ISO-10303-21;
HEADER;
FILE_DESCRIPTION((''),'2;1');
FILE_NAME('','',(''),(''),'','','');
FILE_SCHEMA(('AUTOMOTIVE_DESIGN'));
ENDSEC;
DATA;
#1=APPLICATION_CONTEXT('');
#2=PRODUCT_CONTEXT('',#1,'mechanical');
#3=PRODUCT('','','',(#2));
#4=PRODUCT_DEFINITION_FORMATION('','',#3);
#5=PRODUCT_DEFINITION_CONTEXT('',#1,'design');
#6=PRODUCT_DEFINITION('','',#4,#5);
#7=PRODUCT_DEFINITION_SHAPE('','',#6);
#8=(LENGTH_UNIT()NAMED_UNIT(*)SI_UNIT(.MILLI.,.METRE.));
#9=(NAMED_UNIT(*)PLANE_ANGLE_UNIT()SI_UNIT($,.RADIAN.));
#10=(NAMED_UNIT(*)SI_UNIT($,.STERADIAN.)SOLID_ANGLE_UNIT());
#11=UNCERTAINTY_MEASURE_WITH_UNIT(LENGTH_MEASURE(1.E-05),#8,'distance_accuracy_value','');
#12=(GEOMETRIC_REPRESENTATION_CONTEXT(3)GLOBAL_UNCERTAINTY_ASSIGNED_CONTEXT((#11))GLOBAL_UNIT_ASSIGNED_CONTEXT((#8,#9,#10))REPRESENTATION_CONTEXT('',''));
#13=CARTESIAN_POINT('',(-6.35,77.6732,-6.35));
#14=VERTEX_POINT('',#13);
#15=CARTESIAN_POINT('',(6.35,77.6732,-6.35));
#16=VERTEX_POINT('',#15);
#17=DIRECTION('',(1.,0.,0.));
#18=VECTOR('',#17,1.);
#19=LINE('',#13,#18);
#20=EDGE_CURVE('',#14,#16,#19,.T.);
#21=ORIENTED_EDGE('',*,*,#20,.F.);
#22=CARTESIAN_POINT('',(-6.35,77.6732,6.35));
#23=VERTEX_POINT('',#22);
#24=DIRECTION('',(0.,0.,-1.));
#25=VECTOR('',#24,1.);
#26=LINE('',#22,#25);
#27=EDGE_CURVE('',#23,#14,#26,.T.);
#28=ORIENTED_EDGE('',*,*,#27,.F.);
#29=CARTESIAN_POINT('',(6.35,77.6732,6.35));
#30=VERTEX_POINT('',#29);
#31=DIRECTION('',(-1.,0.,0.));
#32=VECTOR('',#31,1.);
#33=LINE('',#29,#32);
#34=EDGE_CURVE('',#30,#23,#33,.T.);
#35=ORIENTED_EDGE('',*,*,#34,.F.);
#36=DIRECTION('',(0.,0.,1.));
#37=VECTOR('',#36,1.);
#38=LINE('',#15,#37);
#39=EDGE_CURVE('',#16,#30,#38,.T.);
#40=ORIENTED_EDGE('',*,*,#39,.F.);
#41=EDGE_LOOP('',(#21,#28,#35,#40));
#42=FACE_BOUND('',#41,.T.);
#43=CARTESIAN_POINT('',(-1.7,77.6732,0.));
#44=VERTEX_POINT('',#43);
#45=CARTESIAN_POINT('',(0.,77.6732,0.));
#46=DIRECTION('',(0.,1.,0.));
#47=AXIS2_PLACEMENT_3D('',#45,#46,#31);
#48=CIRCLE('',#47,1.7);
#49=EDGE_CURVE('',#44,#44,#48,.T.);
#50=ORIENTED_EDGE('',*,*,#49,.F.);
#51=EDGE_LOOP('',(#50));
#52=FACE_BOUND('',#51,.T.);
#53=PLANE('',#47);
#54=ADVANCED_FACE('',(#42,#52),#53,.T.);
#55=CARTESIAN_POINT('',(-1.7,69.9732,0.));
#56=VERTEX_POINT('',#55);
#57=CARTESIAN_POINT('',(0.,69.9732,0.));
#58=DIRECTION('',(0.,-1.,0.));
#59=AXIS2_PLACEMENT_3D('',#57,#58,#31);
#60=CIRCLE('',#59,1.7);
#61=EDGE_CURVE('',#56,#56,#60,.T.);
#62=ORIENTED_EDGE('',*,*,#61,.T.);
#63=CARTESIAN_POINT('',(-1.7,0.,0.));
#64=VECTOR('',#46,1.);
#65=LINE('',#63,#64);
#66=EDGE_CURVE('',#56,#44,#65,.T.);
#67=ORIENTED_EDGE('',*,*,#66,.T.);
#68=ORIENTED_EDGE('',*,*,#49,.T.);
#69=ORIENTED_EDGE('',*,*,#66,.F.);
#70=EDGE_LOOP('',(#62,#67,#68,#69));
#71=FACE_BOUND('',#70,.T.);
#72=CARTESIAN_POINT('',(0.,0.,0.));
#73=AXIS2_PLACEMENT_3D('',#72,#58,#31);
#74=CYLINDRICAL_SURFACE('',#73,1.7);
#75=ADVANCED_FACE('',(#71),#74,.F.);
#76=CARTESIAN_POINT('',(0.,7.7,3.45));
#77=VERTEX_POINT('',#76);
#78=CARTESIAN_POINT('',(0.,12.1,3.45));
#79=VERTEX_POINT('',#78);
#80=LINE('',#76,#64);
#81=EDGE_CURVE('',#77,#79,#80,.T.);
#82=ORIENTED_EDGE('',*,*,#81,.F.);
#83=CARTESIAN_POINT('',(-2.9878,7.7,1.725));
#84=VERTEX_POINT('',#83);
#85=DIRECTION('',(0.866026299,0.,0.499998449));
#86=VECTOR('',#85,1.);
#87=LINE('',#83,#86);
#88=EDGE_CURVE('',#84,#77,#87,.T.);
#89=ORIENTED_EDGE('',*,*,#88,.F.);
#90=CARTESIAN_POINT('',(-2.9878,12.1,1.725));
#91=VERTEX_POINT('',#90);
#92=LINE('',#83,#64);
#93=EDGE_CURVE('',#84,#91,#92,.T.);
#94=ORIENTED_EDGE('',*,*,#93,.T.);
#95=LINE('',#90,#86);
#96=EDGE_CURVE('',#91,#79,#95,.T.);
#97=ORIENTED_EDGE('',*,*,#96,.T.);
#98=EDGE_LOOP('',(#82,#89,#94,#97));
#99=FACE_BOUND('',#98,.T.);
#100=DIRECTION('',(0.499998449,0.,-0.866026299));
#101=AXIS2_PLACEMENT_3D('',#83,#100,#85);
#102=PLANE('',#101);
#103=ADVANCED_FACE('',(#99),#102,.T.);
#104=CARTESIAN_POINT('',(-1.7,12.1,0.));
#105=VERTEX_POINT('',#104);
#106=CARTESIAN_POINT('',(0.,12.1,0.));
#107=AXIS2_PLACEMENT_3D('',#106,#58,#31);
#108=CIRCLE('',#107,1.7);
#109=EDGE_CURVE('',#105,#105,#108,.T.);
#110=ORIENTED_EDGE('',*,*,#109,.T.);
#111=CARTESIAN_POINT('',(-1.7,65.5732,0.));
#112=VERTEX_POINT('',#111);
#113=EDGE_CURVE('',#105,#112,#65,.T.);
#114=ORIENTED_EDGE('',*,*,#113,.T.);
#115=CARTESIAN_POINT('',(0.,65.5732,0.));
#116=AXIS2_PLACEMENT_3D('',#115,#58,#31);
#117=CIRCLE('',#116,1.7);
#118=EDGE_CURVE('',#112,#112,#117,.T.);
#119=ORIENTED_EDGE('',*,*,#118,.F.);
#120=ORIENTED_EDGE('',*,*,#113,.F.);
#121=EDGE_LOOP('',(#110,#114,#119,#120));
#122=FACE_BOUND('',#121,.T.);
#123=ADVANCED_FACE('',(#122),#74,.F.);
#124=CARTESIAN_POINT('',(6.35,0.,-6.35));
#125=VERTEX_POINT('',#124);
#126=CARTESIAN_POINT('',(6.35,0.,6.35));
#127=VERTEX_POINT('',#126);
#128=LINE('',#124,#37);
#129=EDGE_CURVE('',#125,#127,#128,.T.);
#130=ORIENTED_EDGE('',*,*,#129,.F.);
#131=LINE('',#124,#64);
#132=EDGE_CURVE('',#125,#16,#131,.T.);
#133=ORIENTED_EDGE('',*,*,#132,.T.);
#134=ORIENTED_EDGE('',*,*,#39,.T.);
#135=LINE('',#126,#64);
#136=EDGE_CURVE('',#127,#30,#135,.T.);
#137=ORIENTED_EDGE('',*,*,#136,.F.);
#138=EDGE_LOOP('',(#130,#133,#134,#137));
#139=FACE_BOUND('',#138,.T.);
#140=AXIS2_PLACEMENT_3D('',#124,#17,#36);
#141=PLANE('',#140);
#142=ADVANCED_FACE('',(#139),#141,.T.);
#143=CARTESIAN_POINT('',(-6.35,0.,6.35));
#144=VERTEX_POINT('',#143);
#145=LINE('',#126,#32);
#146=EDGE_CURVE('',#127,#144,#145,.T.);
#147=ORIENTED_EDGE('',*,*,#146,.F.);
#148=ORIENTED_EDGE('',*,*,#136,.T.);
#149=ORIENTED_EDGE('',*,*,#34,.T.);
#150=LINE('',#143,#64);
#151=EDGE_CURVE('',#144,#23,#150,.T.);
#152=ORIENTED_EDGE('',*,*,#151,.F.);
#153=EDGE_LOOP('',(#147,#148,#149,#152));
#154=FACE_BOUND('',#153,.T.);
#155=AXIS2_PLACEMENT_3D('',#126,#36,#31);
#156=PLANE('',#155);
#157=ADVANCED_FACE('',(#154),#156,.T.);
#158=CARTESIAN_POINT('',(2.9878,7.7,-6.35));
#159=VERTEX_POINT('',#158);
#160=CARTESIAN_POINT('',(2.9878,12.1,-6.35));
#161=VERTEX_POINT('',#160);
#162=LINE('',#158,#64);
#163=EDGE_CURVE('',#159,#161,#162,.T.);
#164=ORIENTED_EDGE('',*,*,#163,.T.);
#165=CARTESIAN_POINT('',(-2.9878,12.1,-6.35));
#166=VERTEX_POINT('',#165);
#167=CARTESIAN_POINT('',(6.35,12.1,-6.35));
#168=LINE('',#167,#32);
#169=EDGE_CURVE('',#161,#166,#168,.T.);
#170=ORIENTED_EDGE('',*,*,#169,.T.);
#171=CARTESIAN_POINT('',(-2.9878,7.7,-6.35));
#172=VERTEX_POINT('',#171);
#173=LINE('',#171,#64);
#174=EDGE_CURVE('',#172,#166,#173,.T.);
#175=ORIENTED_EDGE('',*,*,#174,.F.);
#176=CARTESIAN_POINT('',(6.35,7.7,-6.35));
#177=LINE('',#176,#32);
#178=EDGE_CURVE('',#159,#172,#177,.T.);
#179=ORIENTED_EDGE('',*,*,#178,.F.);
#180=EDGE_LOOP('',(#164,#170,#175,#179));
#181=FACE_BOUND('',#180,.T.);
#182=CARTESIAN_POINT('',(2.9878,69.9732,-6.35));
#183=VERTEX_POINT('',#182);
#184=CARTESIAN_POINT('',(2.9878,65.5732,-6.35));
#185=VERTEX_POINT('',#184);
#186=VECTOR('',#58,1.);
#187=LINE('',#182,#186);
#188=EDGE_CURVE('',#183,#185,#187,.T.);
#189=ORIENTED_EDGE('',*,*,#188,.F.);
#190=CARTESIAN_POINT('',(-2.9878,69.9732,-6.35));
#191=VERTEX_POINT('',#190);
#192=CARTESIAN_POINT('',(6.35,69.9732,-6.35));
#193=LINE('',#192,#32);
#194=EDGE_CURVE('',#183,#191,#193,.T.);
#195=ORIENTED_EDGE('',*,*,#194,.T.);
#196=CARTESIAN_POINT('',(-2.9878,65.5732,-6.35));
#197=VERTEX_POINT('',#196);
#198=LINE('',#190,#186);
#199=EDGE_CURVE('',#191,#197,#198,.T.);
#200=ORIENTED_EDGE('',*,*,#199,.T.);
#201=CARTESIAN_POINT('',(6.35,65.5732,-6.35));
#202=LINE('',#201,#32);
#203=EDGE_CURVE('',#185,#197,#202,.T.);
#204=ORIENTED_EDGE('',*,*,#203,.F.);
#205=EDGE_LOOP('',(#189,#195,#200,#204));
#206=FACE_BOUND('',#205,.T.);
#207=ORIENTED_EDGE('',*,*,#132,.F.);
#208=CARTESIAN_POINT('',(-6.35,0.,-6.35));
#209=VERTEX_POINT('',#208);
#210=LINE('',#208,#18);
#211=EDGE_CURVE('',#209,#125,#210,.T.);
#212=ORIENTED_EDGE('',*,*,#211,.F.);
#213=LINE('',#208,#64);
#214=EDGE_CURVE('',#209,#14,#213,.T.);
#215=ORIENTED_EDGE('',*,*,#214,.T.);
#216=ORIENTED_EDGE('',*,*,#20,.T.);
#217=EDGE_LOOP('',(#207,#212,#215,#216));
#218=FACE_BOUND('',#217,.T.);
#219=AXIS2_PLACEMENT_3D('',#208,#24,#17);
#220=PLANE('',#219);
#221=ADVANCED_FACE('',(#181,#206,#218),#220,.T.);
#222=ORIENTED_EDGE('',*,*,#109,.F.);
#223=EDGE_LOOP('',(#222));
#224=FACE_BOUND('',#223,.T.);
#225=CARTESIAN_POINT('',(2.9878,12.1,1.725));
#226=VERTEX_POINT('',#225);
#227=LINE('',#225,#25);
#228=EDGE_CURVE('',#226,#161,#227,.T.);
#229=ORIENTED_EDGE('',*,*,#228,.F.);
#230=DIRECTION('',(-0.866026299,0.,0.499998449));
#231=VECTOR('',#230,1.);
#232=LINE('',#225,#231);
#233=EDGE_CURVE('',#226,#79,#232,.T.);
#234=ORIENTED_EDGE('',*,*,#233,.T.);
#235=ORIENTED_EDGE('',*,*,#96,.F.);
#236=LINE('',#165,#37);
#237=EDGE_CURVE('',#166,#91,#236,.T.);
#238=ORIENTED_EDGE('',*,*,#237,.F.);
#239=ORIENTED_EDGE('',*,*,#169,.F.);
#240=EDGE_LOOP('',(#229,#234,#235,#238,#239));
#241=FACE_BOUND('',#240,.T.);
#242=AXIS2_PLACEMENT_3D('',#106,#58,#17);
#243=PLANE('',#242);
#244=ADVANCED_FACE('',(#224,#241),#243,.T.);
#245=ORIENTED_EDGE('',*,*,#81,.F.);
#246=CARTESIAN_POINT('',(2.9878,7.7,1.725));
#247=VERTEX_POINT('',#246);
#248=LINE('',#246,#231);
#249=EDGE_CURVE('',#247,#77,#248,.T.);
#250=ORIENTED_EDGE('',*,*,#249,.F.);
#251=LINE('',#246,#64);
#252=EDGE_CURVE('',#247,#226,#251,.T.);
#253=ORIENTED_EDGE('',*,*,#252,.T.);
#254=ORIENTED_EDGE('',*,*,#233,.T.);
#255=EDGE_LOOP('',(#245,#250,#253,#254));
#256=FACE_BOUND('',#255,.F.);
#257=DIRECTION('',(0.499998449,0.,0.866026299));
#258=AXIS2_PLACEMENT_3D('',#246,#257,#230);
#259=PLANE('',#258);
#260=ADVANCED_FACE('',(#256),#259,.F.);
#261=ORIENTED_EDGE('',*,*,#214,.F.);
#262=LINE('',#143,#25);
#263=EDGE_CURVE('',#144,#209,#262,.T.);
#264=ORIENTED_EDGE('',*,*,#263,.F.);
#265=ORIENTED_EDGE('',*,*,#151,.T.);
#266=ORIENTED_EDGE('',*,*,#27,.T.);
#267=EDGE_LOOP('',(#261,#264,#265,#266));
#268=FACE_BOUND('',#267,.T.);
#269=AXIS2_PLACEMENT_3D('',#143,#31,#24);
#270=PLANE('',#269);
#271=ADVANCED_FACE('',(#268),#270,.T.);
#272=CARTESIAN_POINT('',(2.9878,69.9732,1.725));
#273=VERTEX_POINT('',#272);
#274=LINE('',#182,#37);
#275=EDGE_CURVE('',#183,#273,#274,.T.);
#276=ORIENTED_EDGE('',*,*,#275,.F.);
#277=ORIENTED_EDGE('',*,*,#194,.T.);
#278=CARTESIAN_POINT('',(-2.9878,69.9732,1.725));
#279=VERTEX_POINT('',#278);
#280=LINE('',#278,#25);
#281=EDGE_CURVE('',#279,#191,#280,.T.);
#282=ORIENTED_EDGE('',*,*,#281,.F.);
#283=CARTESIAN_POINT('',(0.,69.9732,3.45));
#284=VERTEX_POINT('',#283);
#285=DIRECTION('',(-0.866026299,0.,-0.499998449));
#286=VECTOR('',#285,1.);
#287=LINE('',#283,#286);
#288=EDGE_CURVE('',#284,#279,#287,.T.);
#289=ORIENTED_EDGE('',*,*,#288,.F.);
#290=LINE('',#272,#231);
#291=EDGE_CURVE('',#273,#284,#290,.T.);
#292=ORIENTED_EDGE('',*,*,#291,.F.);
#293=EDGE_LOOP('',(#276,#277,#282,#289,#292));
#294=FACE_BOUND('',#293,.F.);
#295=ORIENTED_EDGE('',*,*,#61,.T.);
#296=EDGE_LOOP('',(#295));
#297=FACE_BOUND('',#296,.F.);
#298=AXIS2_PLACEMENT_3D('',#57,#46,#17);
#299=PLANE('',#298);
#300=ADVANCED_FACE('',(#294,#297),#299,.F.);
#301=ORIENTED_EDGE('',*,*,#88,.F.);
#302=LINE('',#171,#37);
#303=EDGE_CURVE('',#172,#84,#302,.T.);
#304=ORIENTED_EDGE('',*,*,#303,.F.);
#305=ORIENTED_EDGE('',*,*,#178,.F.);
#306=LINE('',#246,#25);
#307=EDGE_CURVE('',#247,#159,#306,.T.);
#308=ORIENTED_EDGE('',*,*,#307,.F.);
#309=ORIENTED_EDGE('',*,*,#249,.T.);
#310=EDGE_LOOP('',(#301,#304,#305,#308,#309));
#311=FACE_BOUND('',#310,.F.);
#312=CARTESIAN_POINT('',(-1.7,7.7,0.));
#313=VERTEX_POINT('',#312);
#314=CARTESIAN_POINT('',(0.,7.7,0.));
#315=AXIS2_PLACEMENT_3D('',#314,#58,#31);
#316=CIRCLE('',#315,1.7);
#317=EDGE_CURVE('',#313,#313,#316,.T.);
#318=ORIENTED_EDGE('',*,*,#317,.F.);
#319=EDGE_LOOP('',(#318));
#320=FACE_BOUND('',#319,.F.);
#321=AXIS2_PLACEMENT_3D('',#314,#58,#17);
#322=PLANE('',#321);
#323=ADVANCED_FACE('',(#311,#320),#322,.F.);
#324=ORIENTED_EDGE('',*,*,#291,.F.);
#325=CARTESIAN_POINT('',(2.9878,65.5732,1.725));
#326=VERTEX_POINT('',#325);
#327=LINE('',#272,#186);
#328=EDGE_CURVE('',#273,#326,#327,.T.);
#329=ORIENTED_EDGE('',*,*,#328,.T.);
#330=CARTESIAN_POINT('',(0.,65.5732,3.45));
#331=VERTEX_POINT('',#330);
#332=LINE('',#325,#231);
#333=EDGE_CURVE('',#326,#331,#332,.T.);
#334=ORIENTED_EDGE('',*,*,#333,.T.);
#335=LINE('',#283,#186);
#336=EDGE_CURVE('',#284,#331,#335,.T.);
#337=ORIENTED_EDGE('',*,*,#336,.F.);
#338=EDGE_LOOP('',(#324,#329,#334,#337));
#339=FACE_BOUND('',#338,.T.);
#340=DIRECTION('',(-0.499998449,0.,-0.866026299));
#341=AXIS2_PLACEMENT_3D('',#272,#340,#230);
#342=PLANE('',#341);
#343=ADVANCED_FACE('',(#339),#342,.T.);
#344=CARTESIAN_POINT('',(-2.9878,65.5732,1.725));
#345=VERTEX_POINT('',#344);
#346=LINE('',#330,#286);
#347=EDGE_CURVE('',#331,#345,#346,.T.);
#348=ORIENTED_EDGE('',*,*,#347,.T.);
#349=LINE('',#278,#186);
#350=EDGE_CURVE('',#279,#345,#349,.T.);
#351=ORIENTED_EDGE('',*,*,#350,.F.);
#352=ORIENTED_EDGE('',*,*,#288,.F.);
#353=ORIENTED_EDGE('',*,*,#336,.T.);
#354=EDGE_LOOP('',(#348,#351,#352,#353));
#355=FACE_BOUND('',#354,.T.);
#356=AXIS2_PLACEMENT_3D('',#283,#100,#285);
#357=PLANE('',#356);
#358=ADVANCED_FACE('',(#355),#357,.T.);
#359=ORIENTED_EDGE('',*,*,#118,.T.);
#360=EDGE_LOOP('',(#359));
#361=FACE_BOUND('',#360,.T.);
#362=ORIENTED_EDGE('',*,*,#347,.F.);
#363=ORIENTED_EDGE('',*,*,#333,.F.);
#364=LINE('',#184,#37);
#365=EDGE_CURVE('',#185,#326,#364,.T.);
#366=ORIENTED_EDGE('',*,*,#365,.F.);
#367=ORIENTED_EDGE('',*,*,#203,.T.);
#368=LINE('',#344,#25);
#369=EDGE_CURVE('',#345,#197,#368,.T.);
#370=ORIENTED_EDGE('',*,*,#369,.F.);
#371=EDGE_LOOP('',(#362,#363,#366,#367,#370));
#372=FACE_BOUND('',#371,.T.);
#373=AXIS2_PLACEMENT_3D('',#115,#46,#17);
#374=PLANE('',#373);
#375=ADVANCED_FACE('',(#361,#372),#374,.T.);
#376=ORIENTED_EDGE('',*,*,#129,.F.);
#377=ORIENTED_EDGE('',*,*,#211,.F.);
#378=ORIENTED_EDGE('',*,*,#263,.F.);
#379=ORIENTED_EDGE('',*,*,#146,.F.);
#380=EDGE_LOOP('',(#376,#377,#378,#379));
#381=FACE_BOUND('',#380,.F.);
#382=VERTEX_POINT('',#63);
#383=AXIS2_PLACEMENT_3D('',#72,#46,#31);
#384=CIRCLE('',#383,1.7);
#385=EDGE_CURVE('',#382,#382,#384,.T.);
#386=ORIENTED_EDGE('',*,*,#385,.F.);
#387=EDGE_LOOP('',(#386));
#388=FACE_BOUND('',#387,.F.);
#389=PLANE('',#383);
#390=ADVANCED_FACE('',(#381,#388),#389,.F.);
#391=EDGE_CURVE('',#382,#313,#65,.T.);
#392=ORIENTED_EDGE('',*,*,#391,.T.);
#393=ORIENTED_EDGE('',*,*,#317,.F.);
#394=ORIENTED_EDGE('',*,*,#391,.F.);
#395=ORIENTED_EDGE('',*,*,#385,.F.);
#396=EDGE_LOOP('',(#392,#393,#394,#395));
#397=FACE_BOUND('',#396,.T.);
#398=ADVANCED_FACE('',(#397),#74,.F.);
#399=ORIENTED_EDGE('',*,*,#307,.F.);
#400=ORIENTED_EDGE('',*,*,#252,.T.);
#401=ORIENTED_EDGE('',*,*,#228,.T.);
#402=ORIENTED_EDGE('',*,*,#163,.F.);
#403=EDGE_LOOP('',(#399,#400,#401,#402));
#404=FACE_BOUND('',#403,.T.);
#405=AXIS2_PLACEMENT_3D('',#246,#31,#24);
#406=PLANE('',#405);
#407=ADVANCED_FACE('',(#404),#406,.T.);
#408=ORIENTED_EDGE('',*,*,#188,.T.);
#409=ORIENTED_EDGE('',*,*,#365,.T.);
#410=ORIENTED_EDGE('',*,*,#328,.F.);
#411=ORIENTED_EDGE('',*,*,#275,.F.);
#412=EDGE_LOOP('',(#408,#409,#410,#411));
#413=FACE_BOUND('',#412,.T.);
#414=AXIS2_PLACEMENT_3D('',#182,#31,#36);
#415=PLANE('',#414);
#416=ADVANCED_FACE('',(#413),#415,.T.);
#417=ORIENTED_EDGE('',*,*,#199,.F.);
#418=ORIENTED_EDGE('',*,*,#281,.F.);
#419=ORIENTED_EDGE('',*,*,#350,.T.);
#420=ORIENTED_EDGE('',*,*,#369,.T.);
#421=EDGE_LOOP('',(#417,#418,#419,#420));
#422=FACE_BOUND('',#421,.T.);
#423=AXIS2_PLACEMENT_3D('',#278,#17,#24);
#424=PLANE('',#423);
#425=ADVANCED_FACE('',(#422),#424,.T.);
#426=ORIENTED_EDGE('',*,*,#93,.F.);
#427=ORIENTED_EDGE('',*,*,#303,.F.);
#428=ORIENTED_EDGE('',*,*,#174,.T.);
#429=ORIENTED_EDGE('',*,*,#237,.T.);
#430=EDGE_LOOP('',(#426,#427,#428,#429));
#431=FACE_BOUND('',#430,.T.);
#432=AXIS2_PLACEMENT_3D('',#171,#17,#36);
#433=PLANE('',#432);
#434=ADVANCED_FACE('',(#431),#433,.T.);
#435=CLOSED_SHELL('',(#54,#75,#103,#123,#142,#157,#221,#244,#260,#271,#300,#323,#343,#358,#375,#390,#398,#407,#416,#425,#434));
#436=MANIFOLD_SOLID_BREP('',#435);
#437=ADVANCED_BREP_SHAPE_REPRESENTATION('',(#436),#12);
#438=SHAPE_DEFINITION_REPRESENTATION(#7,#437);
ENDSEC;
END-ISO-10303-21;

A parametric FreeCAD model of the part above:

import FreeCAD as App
import Part
import Sketcher

V = App.Vector
Q = App.Units.Quantity


def add_polygon(sketch, points):
    """Adds a closed chain of lines whose ends are joined by coincident constraints."""
    first, n = sketch.GeometryCount, len(points)
    for a, b in zip(points, points[1:] + points[:1]):
        sketch.addGeometry(Part.LineSegment(App.Vector(*a, 0), App.Vector(*b, 0)), False)
    for i in range(n):
        sketch.addConstraint(Sketcher.Constraint("Coincident", first + i, 2, first + (i + 1) % n, 1))

doc = App.newDocument("Part")
params = doc.addObject("Spreadsheet::Sheet", "Params")
for row, (alias, value) in enumerate([
    ("sketch1_diameter", "3.4 mm"),
    ("sketch1_width", "12.7 mm"),
    ("pad1_length", "77.6732 mm"),
    ("sketch2_length", "3.45 mm"),
    ("pocket1_length", "4.4 mm"),
    ("sketch3_length", "3.45 mm"),
    ("pocket2_length", "4.4 mm"),
], start=1):
    params.set(f"A{row}", alias)
    params.set(f"B{row}", "=" + value)
    params.setAlias(f"B{row}", alias)

body = doc.addObject("PartDesign::Body", "Body")

# Sketch on XZ plane
sketch1 = body.newObject("Sketcher::SketchObject", "Sketch")
sketch1.AttachmentSupport = (doc.getObject("XZ_Plane"), [""])
sketch1.MapMode = "FlatFace"
add_polygon(sketch1, [(-6.3, 6.3), (6.3, 6.3), (6.3, -6.3), (-6.3, -6.3)])  # lines 0-3
sketch1.addGeometry(Part.Circle(V(0, 0, 0), V(0, 0, 1), 1.7), False)  # 4
sketch1.addConstraint([
    Sketcher.Constraint("Horizontal", 0),
    Sketcher.Constraint("Vertical", 1),
    Sketcher.Constraint("Horizontal", 2),
    Sketcher.Constraint("Vertical", 3),
    Sketcher.Constraint("Coincident", 4, 3, -1, 1),
    Sketcher.Constraint("Symmetric", 0, 2, 2, 2, -1, 1),
    Sketcher.Constraint("Equal", 2, 1),
    Sketcher.Constraint("Diameter", 4, Q("3.4 mm")),
    Sketcher.Constraint("DistanceX", 0, 1, 0, 2, Q("12.7 mm")),
])
sketch1.setExpression("Constraints[11]", "Params.sketch1_diameter")
sketch1.setExpression("Constraints[12]", "Params.sketch1_width")
pad1 = body.newObject("PartDesign::Pad", "Pad")
pad1.Profile = sketch1
pad1.setExpression("Length", "Params.pad1_length")
pad1.Reversed = True

# Sketch on XZ plane
sketch2 = body.newObject("Sketcher::SketchObject", "Sketch001")
sketch2.AttachmentSupport = (doc.getObject("XZ_Plane"), [""])
sketch2.MapMode = "FlatFace"
sketch2.AttachmentOffset = App.Placement(V(0, 0, -69.9732), App.Rotation())
add_polygon(sketch2, [(-3, 1.7), (0, 3.5), (3, 1.7), (3, -6.3), (-3, -6.3)])  # lines 0-4
sketch2.addConstraint([
    Sketcher.Constraint("Vertical", 2),
    Sketcher.Constraint("Horizontal", 3),
    Sketcher.Constraint("Vertical", 4),
    Sketcher.Constraint("Symmetric", 1, 2, 4, 2, -2),
    Sketcher.Constraint("PointOnObject", 0, 2, -2),
    Sketcher.Constraint("Angle", 0, Q("30 deg")),
    Sketcher.Constraint("DistanceY", 2, 2, 0, 2, Q("9.8 mm")),
    Sketcher.Constraint("Distance", 0, Q("3.45 mm")),
    Sketcher.Constraint("DistanceY", -1, 1, 0, 2, Q("3.45 mm")),
])
sketch2.setExpression("Constraints[12]", "Params.sketch2_length")
pocket1 = body.newObject("PartDesign::Pocket", "Pocket")
pocket1.Profile = sketch2
pocket1.setExpression("Length", "Params.pocket1_length")
pocket1.Reversed = True

# Sketch on XZ plane
sketch3 = body.newObject("Sketcher::SketchObject", "Sketch002")
sketch3.AttachmentSupport = (doc.getObject("XZ_Plane"), [""])
sketch3.MapMode = "FlatFace"
sketch3.AttachmentOffset = App.Placement(V(0, 0, -7.7), App.Rotation())
add_polygon(sketch3, [(3, -6.3), (3, 1.7), (0, 3.5), (-3, 1.7), (-3, -6.3)])  # lines 0-4
sketch3.addConstraint([
    Sketcher.Constraint("Vertical", 0),
    Sketcher.Constraint("Vertical", 3),
    Sketcher.Constraint("Horizontal", 4),
    Sketcher.Constraint("Symmetric", 0, 2, 2, 2, -2),
    Sketcher.Constraint("PointOnObject", 1, 2, -2),
    Sketcher.Constraint("Angle", 1, Q("150 deg")),
    Sketcher.Constraint("DistanceY", 3, 2, 1, 2, Q("9.8 mm")),
    Sketcher.Constraint("Distance", 1, Q("3.45 mm")),
    Sketcher.Constraint("DistanceY", -1, 1, 1, 2, Q("3.45 mm")),
])
sketch3.setExpression("Constraints[12]", "Params.sketch3_length")
pocket2 = body.newObject("PartDesign::Pocket", "Pocket001")
pocket2.Profile = sketch3
pocket2.setExpression("Length", "Params.pocket2_length")

doc.recompute()
